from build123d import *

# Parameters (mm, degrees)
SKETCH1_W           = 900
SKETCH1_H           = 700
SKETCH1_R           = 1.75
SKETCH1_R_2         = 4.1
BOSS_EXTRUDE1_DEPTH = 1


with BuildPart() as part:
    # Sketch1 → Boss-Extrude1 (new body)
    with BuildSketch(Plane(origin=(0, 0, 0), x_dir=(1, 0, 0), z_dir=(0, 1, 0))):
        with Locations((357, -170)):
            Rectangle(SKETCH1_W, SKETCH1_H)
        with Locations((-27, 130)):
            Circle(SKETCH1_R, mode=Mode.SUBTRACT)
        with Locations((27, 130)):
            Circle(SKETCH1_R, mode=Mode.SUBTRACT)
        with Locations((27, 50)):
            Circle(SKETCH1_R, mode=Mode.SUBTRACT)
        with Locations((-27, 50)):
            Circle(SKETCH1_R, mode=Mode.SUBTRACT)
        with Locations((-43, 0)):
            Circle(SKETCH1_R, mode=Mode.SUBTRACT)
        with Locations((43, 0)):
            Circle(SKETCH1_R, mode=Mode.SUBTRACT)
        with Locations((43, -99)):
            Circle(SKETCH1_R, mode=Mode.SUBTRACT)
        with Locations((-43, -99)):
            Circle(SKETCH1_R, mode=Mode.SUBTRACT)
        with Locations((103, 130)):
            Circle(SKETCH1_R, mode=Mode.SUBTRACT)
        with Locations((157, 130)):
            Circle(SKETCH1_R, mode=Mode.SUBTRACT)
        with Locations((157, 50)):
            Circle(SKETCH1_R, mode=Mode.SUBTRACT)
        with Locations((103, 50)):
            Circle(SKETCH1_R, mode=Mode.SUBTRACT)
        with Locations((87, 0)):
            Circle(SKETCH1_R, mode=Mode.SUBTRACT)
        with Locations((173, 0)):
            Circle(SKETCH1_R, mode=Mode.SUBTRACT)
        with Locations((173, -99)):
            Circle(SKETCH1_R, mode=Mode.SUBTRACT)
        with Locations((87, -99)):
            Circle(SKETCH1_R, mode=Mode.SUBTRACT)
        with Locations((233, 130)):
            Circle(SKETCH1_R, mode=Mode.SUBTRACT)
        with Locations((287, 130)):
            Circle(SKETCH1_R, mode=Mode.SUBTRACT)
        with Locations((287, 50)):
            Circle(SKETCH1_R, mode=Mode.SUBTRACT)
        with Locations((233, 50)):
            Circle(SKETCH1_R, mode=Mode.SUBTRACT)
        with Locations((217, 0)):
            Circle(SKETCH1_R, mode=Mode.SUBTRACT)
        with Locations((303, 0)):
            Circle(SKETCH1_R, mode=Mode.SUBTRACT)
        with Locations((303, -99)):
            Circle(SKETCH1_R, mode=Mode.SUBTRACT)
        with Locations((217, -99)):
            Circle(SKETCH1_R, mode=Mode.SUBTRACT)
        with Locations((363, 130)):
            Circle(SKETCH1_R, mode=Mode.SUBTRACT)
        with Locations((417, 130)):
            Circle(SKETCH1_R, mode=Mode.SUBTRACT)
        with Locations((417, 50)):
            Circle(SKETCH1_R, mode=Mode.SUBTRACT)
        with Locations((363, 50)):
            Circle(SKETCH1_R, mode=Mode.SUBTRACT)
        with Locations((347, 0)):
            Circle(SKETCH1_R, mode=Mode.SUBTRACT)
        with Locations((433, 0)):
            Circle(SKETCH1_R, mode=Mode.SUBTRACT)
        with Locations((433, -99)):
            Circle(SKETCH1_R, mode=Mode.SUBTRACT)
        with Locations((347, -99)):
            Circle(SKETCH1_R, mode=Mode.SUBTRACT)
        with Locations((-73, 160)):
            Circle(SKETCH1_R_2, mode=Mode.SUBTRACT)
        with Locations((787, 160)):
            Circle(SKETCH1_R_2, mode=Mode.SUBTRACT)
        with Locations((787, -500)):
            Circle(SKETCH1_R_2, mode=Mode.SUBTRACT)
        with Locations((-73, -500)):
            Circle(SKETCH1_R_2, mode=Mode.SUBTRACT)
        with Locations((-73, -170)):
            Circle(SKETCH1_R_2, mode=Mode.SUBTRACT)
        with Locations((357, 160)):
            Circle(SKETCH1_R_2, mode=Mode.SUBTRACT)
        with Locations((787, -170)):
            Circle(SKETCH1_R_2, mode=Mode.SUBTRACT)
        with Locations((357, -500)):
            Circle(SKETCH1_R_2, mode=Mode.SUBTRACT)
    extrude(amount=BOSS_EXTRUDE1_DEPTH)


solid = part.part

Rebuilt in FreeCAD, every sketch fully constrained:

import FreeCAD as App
import Part
import Sketcher

V = App.Vector


def add_polygon(sketch, points):
    """Adds a closed chain of lines whose ends are joined by coincident constraints."""
    first, n = sketch.GeometryCount, len(points)
    for a, b in zip(points, points[1:] + points[:1]):
        sketch.addGeometry(Part.LineSegment(App.Vector(*a, 0), App.Vector(*b, 0)), False)
    for i in range(n):
        sketch.addConstraint(Sketcher.Constraint("Coincident", first + i, 2, first + (i + 1) % n, 1))

doc = App.newDocument("Part")
body = doc.addObject("PartDesign::Body", "Body")

# Sketch on XZ plane
sketch1 = body.newObject("Sketcher::SketchObject", "Sketch")
sketch1.AttachmentSupport = (doc.getObject("XZ_Plane"), [""])
sketch1.MapMode = "FlatFace"
add_polygon(sketch1, [(-93, -180), (-93, 520), (807, 520), (807, -180)])  # lines 0-3
sketch1.addGeometry(Part.Circle(V(-73, 500, 0), V(0, 0, 1), 4.1), False)  # 4
sketch1.addGeometry(Part.Circle(V(357, 500, 0), V(0, 0, 1), 4.1), False)  # 5
sketch1.addGeometry(Part.Circle(V(787, 500, 0), V(0, 0, 1), 4.1), False)  # 6
sketch1.addGeometry(Part.Circle(V(-73, 170, 0), V(0, 0, 1), 4.1), False)  # 7
sketch1.addGeometry(Part.Circle(V(-43, 99, 0), V(0, 0, 1), 1.8), False)  # 8
sketch1.addGeometry(Part.Circle(V(43, 99, 0), V(0, 0, 1), 1.8), False)  # 9
sketch1.addGeometry(Part.Circle(V(87, 99, 0), V(0, 0, 1), 1.8), False)  # 10
sketch1.addGeometry(Part.Circle(V(173, 99, 0), V(0, 0, 1), 1.8), False)  # 11
sketch1.addGeometry(Part.Circle(V(217, 99, 0), V(0, 0, 1), 1.8), False)  # 12
sketch1.addGeometry(Part.Circle(V(303, 99, 0), V(0, 0, 1), 1.8), False)  # 13
sketch1.addGeometry(Part.Circle(V(347, 99, 0), V(0, 0, 1), 1.8), False)  # 14
sketch1.addGeometry(Part.Circle(V(-43, 0, 0), V(0, 0, 1), 1.8), False)  # 15
sketch1.addGeometry(Part.Circle(V(-27, -50, 0), V(0, 0, 1), 1.8), False)  # 16
sketch1.addGeometry(Part.Circle(V(27, -50, 0), V(0, 0, 1), 1.8), False)  # 17
sketch1.addGeometry(Part.Circle(V(43, 0, 0), V(0, 0, 1), 1.8), False)  # 18
sketch1.addGeometry(Part.Circle(V(87, 0, 0), V(0, 0, 1), 1.8), False)  # 19
sketch1.addGeometry(Part.Circle(V(103, -50, 0), V(0, 0, 1), 1.8), False)  # 20
sketch1.addGeometry(Part.Circle(V(-27, -130, 0), V(0, 0, 1), 1.8), False)  # 21
sketch1.addGeometry(Part.Circle(V(-73, -160, 0), V(0, 0, 1), 4.1), False)  # 22
sketch1.addGeometry(Part.Circle(V(27, -130, 0), V(0, 0, 1), 1.8), False)  # 23
sketch1.addGeometry(Part.Circle(V(103, -130, 0), V(0, 0, 1), 1.8), False)  # 24
sketch1.addGeometry(Part.Circle(V(173, 0, 0), V(0, 0, 1), 1.8), False)  # 25
sketch1.addGeometry(Part.Circle(V(217, 0, 0), V(0, 0, 1), 1.8), False)  # 26
sketch1.addGeometry(Part.Circle(V(157, -50, 0), V(0, 0, 1), 1.8), False)  # 27
sketch1.addGeometry(Part.Circle(V(233, -50, 0), V(0, 0, 1), 1.8), False)  # 28
sketch1.addGeometry(Part.Circle(V(303, 0, 0), V(0, 0, 1), 1.8), False)  # 29
sketch1.addGeometry(Part.Circle(V(347, 0, 0), V(0, 0, 1), 1.8), False)  # 30
sketch1.addGeometry(Part.Circle(V(287, -50, 0), V(0, 0, 1), 1.8), False)  # 31
sketch1.addGeometry(Part.Circle(V(157, -130, 0), V(0, 0, 1), 1.8), False)  # 32
sketch1.addGeometry(Part.Circle(V(233, -130, 0), V(0, 0, 1), 1.8), False)  # 33
sketch1.addGeometry(Part.Circle(V(287, -130, 0), V(0, 0, 1), 1.8), False)  # 34
sketch1.addGeometry(Part.Circle(V(357, -160, 0), V(0, 0, 1), 4.1), False)  # 35
sketch1.addGeometry(Part.Circle(V(433, 99, 0), V(0, 0, 1), 1.8), False)  # 36
sketch1.addGeometry(Part.Circle(V(787, 170, 0), V(0, 0, 1), 4.1), False)  # 37
sketch1.addGeometry(Part.Circle(V(433, 0, 0), V(0, 0, 1), 1.8), False)  # 38
sketch1.addGeometry(Part.Circle(V(363, -50, 0), V(0, 0, 1), 1.8), False)  # 39
sketch1.addGeometry(Part.Circle(V(417, -50, 0), V(0, 0, 1), 1.8), False)  # 40
sketch1.addGeometry(Part.Circle(V(363, -130, 0), V(0, 0, 1), 1.8), False)  # 41
sketch1.addGeometry(Part.Circle(V(417, -130, 0), V(0, 0, 1), 1.8), False)  # 42
sketch1.addGeometry(Part.Circle(V(787, -160, 0), V(0, 0, 1), 4.1), False)  # 43
sketch1.addConstraint(Sketcher.Constraint("Vertical", 0))
sketch1.addConstraint(Sketcher.Constraint("Horizontal", 1))
sketch1.addConstraint(Sketcher.Constraint("Vertical", 2))
sketch1.addConstraint(Sketcher.Constraint("Horizontal", 3))
sketch1.addConstraint(Sketcher.Constraint("Equal", 4, 5))
sketch1.addConstraint(Sketcher.Constraint("Equal", 5, 6))
sketch1.addConstraint(Sketcher.Constraint("Equal", 6, 7))
sketch1.addConstraint(Sketcher.Constraint("Equal", 8, 9))
sketch1.addConstraint(Sketcher.Constraint("Equal", 9, 10))
sketch1.addConstraint(Sketcher.Constraint("Equal", 10, 11))
sketch1.addConstraint(Sketcher.Constraint("Equal", 11, 12))
sketch1.addConstraint(Sketcher.Constraint("Equal", 12, 13))
sketch1.addConstraint(Sketcher.Constraint("Equal", 13, 14))
sketch1.addConstraint(Sketcher.Constraint("Equal", 14, 15))
sketch1.addConstraint(Sketcher.Constraint("Equal", 15, 16))
sketch1.addConstraint(Sketcher.Constraint("Equal", 16, 17))
sketch1.addConstraint(Sketcher.Constraint("Equal", 17, 18))
sketch1.addConstraint(Sketcher.Constraint("Equal", 18, 19))
sketch1.addConstraint(Sketcher.Constraint("Equal", 19, 20))
sketch1.addConstraint(Sketcher.Constraint("Equal", 20, 21))
sketch1.addConstraint(Sketcher.Constraint("Equal", 7, 22))
sketch1.addConstraint(Sketcher.Constraint("Equal", 21, 23))
sketch1.addConstraint(Sketcher.Constraint("Equal", 23, 24))
sketch1.addConstraint(Sketcher.Constraint("Equal", 24, 25))
sketch1.addConstraint(Sketcher.Constraint("Equal", 25, 26))
sketch1.addConstraint(Sketcher.Constraint("Equal", 26, 27))
sketch1.addConstraint(Sketcher.Constraint("Equal", 27, 28))
sketch1.addConstraint(Sketcher.Constraint("Equal", 28, 29))
sketch1.addConstraint(Sketcher.Constraint("Equal", 29, 30))
sketch1.addConstraint(Sketcher.Constraint("Equal", 30, 31))
sketch1.addConstraint(Sketcher.Constraint("Equal", 31, 32))
sketch1.addConstraint(Sketcher.Constraint("Equal", 32, 33))
sketch1.addConstraint(Sketcher.Constraint("Equal", 33, 34))
sketch1.addConstraint(Sketcher.Constraint("Equal", 22, 35))
sketch1.addConstraint(Sketcher.Constraint("Equal", 34, 36))
sketch1.addConstraint(Sketcher.Constraint("Equal", 35, 37))
sketch1.addConstraint(Sketcher.Constraint("Equal", 36, 38))
sketch1.addConstraint(Sketcher.Constraint("Equal", 38, 39))
sketch1.addConstraint(Sketcher.Constraint("Equal", 39, 40))
sketch1.addConstraint(Sketcher.Constraint("Equal", 40, 41))
sketch1.addConstraint(Sketcher.Constraint("Equal", 41, 42))
sketch1.addConstraint(Sketcher.Constraint("Equal", 37, 43))
sketch1.addConstraint(Sketcher.Constraint("Symmetric", 15, 3, 18, 3, -1, 1))
sketch1.addConstraint(Sketcher.Constraint("Symmetric", 8, 3, 9, 3, -2))
sketch1.addConstraint(Sketcher.Constraint("Symmetric", 16, 3, 17, 3, -2))
sketch1.addConstraint(Sketcher.Constraint("Symmetric", 21, 3, 23, 3, -2))
sketch1.addConstraint(Sketcher.Constraint("PointOnObject", 15, 3, -1))
sketch1.addConstraint(Sketcher.Constraint("PointOnObject", 19, 3, -1))
sketch1.addConstraint(Sketcher.Constraint("PointOnObject", 25, 3, -1))
sketch1.addConstraint(Sketcher.Constraint("PointOnObject", 26, 3, -1))
sketch1.addConstraint(Sketcher.Constraint("PointOnObject", 29, 3, -1))
sketch1.addConstraint(Sketcher.Constraint("PointOnObject", 30, 3, -1))
sketch1.addConstraint(Sketcher.Constraint("PointOnObject", 38, 3, -1))
sketch1.addConstraint(Sketcher.Constraint("Horizontal", 4, 3, 5, 3))
sketch1.addConstraint(Sketcher.Constraint("Horizontal", 5, 3, 6, 3))
sketch1.addConstraint(Sketcher.Constraint("Horizontal", 9, 3, 10, 3))
sketch1.addConstraint(Sketcher.Constraint("Horizontal", 10, 3, 11, 3))
sketch1.addConstraint(Sketcher.Constraint("Horizontal", 11, 3, 12, 3))
sketch1.addConstraint(Sketcher.Constraint("Horizontal", 12, 3, 13, 3))
sketch1.addConstraint(Sketcher.Constraint("Horizontal", 13, 3, 14, 3))
sketch1.addConstraint(Sketcher.Constraint("Horizontal", 17, 3, 20, 3))
sketch1.addConstraint(Sketcher.Constraint("Horizontal", 23, 3, 24, 3))
sketch1.addConstraint(Sketcher.Constraint("Horizontal", 20, 3, 27, 3))
sketch1.addConstraint(Sketcher.Constraint("Horizontal", 27, 3, 28, 3))
sketch1.addConstraint(Sketcher.Constraint("Horizontal", 28, 3, 31, 3))
sketch1.addConstraint(Sketcher.Constraint("Horizontal", 24, 3, 32, 3))
sketch1.addConstraint(Sketcher.Constraint("Horizontal", 32, 3, 33, 3))
sketch1.addConstraint(Sketcher.Constraint("Horizontal", 33, 3, 34, 3))
sketch1.addConstraint(Sketcher.Constraint("Horizontal", 22, 3, 35, 3))
sketch1.addConstraint(Sketcher.Constraint("Horizontal", 14, 3, 36, 3))
sketch1.addConstraint(Sketcher.Constraint("Horizontal", 7, 3, 37, 3))
sketch1.addConstraint(Sketcher.Constraint("Horizontal", 31, 3, 39, 3))
sketch1.addConstraint(Sketcher.Constraint("Horizontal", 39, 3, 40, 3))
sketch1.addConstraint(Sketcher.Constraint("Horizontal", 34, 3, 41, 3))
sketch1.addConstraint(Sketcher.Constraint("Horizontal", 41, 3, 42, 3))
sketch1.addConstraint(Sketcher.Constraint("Horizontal", 35, 3, 43, 3))
sketch1.addConstraint(Sketcher.Constraint("Vertical", 4, 3, 7, 3))
sketch1.addConstraint(Sketcher.Constraint("Vertical", 8, 3, 15, 3))
sketch1.addConstraint(Sketcher.Constraint("Vertical", 10, 3, 19, 3))
sketch1.addConstraint(Sketcher.Constraint("Vertical", 16, 3, 21, 3))
sketch1.addConstraint(Sketcher.Constraint("Vertical", 7, 3, 22, 3))
sketch1.addConstraint(Sketcher.Constraint("Vertical", 20, 3, 24, 3))
sketch1.addConstraint(Sketcher.Constraint("Vertical", 11, 3, 25, 3))
sketch1.addConstraint(Sketcher.Constraint("Vertical", 12, 3, 26, 3))
sketch1.addConstraint(Sketcher.Constraint("Vertical", 13, 3, 29, 3))
sketch1.addConstraint(Sketcher.Constraint("Vertical", 14, 3, 30, 3))
sketch1.addConstraint(Sketcher.Constraint("Vertical", 27, 3, 32, 3))
sketch1.addConstraint(Sketcher.Constraint("Vertical", 28, 3, 33, 3))
sketch1.addConstraint(Sketcher.Constraint("Vertical", 31, 3, 34, 3))
sketch1.addConstraint(Sketcher.Constraint("Vertical", 5, 3, 35, 3))
sketch1.addConstraint(Sketcher.Constraint("Vertical", 6, 3, 37, 3))
sketch1.addConstraint(Sketcher.Constraint("Vertical", 36, 3, 38, 3))
sketch1.addConstraint(Sketcher.Constraint("Vertical", 39, 3, 41, 3))
sketch1.addConstraint(Sketcher.Constraint("Vertical", 40, 3, 42, 3))
sketch1.addConstraint(Sketcher.Constraint("Vertical", 37, 3, 43, 3))
sketch1.addConstraint(Sketcher.Constraint("Diameter", 4, 8.2))
sketch1.addConstraint(Sketcher.Constraint("Diameter", 8, 3.5))
sketch1.addConstraint(Sketcher.Constraint("DistanceX", 1, 1, 1, 2, 900.0))
sketch1.addConstraint(Sketcher.Constraint("DistanceY", 0, 1, 0, 2, 700.0))
sketch1.addConstraint(Sketcher.Constraint("DistanceX", 4, 3, -1, 1, 73.0))
sketch1.addConstraint(Sketcher.Constraint("DistanceY", -1, 1, 4, 3, 500.0))
sketch1.addConstraint(Sketcher.Constraint("DistanceX", -1, 1, 5, 3, 357.0))
sketch1.addConstraint(Sketcher.Constraint("DistanceX", -1, 1, 6, 3, 787.0))
sketch1.addConstraint(Sketcher.Constraint("DistanceY", -1, 1, 7, 3, 170.0))
sketch1.addConstraint(Sketcher.Constraint("DistanceX", 8, 3, -1, 1, 43.0))
sketch1.addConstraint(Sketcher.Constraint("DistanceY", -1, 1, 8, 3, 99.0))
sketch1.addConstraint(Sketcher.Constraint("DistanceX", -1, 1, 10, 3, 87.0))
sketch1.addConstraint(Sketcher.Constraint("DistanceX", -1, 1, 11, 3, 173.0))
sketch1.addConstraint(Sketcher.Constraint("DistanceX", -1, 1, 12, 3, 217.0))
sketch1.addConstraint(Sketcher.Constraint("DistanceX", -1, 1, 13, 3, 303.0))
sketch1.addConstraint(Sketcher.Constraint("DistanceX", -1, 1, 14, 3, 347.0))
sketch1.addConstraint(Sketcher.Constraint("DistanceX", 16, 3, -1, 1, 27.0))
sketch1.addConstraint(Sketcher.Constraint("DistanceY", 16, 3, -1, 1, 50.0))
sketch1.addConstraint(Sketcher.Constraint("DistanceX", -1, 1, 20, 3, 103.0))
sketch1.addConstraint(Sketcher.Constraint("DistanceY", 21, 3, -1, 1, 130.0))
sketch1.addConstraint(Sketcher.Constraint("DistanceY", 22, 3, -1, 1, 160.0))
sketch1.addConstraint(Sketcher.Constraint("DistanceX", -1, 1, 27, 3, 157.0))
sketch1.addConstraint(Sketcher.Constraint("DistanceX", -1, 1, 28, 3, 233.0))
sketch1.addConstraint(Sketcher.Constraint("DistanceX", -1, 1, 31, 3, 287.0))
sketch1.addConstraint(Sketcher.Constraint("DistanceX", -1, 1, 36, 3, 433.0))
sketch1.addConstraint(Sketcher.Constraint("DistanceX", -1, 1, 39, 3, 363.0))
sketch1.addConstraint(Sketcher.Constraint("DistanceX", -1, 1, 40, 3, 417.0))
sketch1.addConstraint(Sketcher.Constraint("DistanceX", 0, 2, -1, 1, 93.0))
sketch1.addConstraint(Sketcher.Constraint("DistanceY", -1, 1, 0, 2, 520.0))
pad1 = body.newObject("PartDesign::Pad", "Pad")
pad1.Profile = sketch1
pad1.Length = 1
pad1.Reversed = True

doc.recompute()
